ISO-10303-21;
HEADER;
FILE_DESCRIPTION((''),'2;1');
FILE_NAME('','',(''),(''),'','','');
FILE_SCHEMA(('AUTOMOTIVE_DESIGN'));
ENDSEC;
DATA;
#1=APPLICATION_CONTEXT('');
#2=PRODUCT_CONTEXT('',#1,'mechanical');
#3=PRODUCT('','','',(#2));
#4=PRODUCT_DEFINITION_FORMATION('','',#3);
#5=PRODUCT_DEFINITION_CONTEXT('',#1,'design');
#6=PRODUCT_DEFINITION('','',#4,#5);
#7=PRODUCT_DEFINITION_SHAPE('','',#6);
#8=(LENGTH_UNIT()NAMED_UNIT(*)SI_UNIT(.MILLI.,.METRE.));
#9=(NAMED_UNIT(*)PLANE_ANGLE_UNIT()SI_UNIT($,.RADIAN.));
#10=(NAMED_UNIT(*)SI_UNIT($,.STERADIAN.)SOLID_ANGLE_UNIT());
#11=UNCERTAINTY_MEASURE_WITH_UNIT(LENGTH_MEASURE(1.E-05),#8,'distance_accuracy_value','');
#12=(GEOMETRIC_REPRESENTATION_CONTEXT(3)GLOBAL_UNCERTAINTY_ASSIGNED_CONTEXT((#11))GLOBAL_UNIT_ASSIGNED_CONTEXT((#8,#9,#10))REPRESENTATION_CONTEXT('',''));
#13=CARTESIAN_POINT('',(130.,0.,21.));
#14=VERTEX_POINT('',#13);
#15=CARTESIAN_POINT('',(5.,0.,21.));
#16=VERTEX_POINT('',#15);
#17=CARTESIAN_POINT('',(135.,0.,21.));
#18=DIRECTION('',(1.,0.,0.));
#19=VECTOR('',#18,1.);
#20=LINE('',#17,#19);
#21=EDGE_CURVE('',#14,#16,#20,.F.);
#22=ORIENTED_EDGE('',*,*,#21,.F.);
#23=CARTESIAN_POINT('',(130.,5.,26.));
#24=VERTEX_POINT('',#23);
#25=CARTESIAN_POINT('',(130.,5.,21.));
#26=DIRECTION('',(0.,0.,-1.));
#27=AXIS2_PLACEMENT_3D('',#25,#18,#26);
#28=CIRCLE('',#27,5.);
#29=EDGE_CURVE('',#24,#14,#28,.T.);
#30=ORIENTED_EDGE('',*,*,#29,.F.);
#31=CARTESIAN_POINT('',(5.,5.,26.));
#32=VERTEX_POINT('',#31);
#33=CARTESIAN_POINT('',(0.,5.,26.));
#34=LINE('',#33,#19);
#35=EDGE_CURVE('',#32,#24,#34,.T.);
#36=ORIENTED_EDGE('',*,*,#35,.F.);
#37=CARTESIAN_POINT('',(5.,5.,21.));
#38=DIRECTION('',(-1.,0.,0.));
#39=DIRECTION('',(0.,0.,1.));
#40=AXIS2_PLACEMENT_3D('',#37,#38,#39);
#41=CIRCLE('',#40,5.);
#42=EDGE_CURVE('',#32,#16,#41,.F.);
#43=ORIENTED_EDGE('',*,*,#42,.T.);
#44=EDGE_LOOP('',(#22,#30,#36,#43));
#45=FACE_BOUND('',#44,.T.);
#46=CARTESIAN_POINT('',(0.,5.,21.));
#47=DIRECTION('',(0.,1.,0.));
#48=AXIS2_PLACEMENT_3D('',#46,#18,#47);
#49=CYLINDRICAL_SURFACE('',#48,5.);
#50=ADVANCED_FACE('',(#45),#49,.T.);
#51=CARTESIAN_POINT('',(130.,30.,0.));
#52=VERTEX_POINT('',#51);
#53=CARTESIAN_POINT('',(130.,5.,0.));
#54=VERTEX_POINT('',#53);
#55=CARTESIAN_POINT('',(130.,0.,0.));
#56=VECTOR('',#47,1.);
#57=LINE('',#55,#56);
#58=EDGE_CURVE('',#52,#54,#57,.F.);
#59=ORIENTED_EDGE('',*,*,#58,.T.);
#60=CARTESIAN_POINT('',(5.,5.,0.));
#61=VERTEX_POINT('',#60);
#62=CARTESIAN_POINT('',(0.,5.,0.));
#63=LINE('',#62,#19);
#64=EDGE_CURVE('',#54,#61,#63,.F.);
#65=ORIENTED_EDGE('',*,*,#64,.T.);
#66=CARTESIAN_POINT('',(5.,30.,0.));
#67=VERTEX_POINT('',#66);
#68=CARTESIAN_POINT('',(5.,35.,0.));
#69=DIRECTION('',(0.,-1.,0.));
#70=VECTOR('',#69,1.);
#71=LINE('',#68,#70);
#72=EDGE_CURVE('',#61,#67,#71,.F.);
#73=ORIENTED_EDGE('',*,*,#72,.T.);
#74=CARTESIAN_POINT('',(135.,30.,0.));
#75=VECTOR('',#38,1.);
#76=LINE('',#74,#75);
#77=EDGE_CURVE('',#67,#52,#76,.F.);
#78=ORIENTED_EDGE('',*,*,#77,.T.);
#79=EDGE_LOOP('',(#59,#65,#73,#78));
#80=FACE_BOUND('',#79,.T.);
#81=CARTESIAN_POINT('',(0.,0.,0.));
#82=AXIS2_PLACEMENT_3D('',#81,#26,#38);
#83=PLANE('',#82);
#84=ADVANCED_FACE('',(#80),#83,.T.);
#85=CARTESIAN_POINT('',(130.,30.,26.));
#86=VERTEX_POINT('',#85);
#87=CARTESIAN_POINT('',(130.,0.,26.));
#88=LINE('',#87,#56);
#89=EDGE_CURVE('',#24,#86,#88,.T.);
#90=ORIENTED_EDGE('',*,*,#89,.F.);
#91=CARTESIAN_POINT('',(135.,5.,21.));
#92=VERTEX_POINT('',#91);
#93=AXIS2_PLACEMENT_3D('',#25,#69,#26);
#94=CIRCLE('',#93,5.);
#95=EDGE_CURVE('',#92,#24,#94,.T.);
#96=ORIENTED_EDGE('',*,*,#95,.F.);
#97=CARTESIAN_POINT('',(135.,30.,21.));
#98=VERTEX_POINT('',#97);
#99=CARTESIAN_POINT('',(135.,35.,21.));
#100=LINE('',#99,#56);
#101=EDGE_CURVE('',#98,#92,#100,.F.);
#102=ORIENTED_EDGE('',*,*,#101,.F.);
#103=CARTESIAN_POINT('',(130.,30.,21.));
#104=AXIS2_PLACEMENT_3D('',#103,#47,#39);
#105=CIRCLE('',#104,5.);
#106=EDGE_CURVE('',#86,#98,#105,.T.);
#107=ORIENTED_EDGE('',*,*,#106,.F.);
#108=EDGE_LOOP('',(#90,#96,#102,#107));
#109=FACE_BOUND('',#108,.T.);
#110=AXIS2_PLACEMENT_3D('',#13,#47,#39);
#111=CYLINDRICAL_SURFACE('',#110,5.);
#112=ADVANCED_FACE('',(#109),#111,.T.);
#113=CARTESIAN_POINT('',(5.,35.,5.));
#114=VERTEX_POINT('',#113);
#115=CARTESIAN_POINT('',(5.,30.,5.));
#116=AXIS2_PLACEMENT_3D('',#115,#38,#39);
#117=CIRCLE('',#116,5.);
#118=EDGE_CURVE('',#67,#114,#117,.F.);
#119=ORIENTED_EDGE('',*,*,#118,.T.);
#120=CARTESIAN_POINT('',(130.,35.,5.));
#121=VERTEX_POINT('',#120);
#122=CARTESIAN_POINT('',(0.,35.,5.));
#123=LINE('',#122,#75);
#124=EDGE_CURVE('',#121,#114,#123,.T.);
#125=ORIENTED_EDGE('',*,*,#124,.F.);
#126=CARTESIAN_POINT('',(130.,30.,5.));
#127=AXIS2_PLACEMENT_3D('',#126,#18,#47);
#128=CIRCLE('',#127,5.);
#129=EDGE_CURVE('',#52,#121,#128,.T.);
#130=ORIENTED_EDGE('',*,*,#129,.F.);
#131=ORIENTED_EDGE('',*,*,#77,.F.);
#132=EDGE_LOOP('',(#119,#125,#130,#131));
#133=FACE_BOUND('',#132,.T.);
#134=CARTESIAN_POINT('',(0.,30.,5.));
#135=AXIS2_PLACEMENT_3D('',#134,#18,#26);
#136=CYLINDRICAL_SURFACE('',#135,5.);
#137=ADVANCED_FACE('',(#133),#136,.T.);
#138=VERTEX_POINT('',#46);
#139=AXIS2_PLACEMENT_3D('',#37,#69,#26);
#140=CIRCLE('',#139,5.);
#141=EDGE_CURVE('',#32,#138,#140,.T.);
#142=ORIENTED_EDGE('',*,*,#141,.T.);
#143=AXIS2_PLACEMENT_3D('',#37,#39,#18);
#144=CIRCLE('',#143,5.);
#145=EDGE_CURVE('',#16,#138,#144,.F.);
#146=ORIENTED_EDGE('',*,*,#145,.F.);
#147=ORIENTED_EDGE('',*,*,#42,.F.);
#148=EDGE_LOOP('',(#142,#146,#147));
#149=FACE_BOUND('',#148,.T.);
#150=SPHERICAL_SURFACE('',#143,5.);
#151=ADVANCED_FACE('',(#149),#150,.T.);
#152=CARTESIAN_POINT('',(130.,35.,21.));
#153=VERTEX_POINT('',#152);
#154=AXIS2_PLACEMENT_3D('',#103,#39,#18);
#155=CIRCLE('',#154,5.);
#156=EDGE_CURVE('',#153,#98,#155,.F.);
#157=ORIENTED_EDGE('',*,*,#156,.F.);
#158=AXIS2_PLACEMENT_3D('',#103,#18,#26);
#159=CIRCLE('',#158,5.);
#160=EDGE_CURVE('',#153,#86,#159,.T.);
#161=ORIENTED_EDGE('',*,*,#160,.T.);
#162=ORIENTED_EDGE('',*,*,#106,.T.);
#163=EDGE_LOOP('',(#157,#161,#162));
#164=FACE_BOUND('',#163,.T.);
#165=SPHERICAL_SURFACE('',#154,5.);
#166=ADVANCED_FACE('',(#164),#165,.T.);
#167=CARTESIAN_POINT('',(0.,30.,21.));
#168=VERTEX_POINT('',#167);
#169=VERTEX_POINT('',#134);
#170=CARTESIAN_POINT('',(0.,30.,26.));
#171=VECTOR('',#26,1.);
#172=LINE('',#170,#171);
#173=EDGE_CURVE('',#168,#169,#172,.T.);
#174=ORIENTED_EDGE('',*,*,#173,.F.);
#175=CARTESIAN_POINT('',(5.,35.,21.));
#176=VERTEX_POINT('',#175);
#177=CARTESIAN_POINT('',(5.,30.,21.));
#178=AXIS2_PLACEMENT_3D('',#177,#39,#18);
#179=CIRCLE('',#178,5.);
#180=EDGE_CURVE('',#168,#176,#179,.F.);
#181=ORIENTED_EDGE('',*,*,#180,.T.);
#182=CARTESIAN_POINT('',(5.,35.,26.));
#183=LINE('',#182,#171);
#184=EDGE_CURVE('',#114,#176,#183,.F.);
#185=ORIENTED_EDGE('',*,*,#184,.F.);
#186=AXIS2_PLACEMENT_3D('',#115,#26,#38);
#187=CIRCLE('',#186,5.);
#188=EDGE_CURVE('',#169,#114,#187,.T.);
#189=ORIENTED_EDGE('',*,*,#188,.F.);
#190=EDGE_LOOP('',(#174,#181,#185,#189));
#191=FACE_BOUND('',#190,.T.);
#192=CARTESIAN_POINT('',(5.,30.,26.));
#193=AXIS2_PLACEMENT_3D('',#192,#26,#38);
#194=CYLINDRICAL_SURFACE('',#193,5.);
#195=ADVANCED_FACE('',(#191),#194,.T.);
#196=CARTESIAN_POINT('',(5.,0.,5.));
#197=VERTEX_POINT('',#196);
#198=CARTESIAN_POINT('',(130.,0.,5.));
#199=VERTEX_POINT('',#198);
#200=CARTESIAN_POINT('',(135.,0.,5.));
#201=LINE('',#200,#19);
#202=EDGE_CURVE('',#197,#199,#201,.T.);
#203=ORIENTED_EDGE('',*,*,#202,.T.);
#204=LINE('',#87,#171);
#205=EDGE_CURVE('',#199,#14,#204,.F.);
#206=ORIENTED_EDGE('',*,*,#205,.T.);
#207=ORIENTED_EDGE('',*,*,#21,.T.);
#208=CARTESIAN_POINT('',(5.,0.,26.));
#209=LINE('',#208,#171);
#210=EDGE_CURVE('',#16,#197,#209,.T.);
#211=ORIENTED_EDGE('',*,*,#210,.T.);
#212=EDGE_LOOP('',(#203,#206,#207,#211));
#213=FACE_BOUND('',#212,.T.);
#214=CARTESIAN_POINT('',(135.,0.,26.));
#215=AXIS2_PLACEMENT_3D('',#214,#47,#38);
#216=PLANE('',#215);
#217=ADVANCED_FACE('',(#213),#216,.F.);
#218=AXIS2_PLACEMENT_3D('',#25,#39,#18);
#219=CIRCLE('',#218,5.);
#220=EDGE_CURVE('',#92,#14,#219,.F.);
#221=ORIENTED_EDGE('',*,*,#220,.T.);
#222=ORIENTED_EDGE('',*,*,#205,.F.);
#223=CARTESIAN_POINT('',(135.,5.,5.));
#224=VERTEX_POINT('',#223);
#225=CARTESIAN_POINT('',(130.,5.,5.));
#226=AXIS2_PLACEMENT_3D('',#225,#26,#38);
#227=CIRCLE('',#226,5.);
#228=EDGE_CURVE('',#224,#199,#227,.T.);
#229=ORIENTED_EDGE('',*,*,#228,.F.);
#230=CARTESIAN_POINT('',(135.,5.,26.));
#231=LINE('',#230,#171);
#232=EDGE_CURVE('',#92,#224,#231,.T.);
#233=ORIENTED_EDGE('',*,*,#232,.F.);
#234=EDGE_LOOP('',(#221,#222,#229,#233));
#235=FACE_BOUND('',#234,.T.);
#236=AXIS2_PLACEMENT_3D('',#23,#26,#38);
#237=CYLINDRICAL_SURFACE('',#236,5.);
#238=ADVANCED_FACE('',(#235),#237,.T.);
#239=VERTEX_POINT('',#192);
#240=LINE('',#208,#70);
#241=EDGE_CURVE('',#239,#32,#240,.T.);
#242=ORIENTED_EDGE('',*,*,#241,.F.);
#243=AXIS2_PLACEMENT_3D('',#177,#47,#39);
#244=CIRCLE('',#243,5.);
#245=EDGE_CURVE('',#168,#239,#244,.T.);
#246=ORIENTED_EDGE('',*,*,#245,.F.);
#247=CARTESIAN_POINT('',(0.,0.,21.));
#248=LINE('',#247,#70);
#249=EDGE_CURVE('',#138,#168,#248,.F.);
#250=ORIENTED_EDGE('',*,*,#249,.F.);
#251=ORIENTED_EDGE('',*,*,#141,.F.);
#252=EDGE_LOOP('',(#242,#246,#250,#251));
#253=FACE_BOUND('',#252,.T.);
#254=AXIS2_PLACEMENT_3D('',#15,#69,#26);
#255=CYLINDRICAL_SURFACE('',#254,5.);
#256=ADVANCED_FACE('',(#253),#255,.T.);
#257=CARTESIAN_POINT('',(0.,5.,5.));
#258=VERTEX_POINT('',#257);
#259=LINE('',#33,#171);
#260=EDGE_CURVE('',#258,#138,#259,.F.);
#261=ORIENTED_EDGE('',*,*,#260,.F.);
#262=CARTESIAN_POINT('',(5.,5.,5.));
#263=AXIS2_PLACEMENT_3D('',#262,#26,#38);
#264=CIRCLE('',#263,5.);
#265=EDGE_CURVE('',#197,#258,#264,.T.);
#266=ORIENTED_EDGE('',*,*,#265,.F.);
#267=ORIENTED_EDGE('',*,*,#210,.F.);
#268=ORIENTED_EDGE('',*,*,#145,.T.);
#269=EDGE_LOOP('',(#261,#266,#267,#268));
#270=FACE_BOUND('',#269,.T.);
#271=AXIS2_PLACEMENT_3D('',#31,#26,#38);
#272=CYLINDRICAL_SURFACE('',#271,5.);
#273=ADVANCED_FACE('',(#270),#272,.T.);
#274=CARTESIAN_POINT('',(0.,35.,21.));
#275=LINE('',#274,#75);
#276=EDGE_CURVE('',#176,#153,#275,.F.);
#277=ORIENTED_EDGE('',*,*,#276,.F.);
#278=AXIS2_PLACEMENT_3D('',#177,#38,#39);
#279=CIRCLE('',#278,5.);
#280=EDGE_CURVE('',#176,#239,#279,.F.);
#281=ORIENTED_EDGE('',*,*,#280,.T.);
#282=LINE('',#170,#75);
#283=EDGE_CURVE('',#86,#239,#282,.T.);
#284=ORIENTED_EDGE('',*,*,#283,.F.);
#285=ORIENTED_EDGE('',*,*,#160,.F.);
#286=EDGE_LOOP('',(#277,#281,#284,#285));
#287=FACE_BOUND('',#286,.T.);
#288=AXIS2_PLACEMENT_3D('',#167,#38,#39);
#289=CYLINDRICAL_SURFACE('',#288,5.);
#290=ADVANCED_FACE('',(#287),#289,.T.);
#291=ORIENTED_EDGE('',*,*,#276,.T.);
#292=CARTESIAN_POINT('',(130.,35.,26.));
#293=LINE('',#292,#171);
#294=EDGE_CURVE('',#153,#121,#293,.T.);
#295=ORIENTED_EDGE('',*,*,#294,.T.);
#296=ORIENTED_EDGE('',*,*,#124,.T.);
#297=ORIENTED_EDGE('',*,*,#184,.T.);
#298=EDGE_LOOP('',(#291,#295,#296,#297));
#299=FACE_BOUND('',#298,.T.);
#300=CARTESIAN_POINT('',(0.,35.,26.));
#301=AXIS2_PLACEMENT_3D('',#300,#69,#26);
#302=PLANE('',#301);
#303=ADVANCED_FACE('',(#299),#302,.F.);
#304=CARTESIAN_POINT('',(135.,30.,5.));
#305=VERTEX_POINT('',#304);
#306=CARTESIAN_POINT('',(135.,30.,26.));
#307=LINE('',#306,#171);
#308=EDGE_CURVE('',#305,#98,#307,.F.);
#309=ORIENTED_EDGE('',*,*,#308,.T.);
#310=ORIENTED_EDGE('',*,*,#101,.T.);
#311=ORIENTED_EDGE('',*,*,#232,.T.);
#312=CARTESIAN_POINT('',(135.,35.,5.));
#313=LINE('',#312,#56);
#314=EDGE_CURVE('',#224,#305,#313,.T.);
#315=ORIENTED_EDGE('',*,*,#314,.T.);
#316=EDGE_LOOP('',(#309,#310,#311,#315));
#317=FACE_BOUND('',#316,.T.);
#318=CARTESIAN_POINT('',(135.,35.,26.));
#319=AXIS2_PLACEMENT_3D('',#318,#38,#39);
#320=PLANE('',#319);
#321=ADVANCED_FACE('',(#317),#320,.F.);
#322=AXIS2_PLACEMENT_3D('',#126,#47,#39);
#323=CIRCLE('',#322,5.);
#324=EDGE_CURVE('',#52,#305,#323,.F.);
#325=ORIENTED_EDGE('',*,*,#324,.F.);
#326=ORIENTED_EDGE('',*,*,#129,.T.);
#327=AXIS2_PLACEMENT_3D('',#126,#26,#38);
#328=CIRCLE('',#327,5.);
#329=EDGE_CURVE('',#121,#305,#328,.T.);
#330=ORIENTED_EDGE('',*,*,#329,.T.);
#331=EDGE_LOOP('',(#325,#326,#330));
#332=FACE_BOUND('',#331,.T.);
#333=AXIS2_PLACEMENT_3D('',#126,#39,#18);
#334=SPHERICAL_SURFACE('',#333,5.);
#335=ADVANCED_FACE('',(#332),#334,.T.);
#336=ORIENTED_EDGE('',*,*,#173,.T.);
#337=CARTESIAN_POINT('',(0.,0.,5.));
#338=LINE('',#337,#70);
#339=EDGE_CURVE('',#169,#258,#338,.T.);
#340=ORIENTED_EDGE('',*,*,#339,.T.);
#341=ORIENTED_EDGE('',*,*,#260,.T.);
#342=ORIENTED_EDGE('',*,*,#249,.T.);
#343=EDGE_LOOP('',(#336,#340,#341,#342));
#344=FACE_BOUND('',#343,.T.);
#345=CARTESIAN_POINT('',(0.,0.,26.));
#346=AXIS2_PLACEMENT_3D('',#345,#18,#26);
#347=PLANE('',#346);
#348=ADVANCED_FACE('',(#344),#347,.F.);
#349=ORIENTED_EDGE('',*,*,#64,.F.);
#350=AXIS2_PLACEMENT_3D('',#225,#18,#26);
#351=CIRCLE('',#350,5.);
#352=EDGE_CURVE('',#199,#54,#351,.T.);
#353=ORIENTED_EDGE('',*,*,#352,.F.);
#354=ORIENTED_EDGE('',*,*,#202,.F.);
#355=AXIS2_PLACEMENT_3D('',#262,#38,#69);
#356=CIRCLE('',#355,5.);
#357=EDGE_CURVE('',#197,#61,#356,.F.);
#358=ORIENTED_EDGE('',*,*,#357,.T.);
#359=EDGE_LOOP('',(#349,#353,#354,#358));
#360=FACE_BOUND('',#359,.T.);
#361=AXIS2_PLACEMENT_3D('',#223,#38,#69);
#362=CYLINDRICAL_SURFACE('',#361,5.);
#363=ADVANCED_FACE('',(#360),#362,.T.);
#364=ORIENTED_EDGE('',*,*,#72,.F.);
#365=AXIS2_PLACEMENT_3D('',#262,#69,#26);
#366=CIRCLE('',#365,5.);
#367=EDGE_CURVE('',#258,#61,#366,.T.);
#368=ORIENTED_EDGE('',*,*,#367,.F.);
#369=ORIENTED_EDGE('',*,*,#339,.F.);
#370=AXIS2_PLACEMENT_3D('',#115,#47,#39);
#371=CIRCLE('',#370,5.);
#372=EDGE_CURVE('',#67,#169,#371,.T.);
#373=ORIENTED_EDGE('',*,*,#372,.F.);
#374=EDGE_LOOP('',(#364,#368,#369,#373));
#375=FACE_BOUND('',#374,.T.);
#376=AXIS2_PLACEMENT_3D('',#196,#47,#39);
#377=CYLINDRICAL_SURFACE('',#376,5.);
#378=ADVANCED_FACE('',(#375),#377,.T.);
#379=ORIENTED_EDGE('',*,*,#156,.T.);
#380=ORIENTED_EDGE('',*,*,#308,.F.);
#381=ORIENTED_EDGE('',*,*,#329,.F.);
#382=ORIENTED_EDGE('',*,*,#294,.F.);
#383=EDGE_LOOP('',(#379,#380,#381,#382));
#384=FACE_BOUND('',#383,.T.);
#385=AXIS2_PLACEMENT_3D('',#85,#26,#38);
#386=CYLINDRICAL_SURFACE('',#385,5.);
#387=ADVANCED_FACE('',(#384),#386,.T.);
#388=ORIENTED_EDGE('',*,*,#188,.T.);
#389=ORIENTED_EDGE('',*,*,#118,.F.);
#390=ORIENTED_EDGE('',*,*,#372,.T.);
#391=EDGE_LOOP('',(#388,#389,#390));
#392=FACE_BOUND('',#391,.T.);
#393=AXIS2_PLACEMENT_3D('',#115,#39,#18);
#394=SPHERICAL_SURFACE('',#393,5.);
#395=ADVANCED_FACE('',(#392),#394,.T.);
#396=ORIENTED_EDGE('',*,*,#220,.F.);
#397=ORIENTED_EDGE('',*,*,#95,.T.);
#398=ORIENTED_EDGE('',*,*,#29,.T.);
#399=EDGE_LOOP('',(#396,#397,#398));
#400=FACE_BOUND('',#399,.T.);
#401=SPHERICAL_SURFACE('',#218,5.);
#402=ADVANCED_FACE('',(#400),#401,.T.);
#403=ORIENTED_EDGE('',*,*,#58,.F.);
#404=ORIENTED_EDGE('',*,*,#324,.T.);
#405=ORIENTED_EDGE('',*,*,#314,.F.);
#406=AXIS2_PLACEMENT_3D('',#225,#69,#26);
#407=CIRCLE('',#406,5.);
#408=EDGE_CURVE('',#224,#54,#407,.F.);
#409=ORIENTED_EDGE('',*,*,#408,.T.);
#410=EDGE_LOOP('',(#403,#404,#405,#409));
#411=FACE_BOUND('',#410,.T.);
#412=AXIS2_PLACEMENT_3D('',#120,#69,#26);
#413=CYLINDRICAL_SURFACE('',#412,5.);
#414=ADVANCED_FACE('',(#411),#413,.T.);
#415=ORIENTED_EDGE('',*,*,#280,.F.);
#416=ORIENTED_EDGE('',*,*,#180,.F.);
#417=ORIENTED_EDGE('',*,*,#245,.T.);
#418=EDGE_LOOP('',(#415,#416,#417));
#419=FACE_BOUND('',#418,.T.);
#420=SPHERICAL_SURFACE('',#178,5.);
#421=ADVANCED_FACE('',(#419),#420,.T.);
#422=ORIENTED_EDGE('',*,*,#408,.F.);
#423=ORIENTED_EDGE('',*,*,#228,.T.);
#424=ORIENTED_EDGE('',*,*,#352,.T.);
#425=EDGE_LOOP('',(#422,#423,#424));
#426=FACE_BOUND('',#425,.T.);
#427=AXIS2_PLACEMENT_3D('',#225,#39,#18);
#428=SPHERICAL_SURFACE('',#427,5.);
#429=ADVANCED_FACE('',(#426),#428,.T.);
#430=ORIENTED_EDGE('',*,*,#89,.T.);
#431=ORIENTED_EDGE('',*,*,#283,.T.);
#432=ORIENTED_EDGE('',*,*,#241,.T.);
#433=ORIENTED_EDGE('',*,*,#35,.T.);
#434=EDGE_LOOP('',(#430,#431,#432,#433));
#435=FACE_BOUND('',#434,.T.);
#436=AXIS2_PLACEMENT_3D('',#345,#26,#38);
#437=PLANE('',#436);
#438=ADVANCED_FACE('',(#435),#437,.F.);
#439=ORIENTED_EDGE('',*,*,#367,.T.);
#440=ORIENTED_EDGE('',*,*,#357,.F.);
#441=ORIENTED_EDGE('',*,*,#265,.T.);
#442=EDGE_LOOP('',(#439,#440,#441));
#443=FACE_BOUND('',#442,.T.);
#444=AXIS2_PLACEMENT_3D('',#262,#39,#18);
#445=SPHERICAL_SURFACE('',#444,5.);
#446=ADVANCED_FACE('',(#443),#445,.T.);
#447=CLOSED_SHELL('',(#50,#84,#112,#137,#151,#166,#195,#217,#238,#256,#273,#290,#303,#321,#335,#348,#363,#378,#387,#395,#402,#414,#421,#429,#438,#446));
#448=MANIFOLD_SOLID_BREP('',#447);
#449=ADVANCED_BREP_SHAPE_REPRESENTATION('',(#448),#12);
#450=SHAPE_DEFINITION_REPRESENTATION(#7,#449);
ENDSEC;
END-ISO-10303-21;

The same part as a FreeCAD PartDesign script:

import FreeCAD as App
import Part
import Sketcher
from FreeCAD import Vector

doc = App.newDocument("Part")
body = doc.addObject("PartDesign::Body", "Body")

# Sketch on XY plane
sketch1 = doc.addObject("Sketcher::SketchObject", "Sketch")
body.addObject(sketch1)
sketch1.AttachmentSupport = (doc.XY_Plane, [""])
sketch1.MapMode = "FlatFace"
sketch1.addGeometry(Part.LineSegment(Vector(0, 35, 0), Vector(0, 0, 0)), False)
sketch1.addGeometry(Part.LineSegment(Vector(0, 0, 0), Vector(135, 0, 0)), False)
sketch1.addGeometry(Part.LineSegment(Vector(135, 0, 0), Vector(135, 35, 0)), False)
sketch1.addGeometry(Part.LineSegment(Vector(135, 35, 0), Vector(0, 35, 0)), False)
sketch1.addConstraint(Sketcher.Constraint("Coincident", 0, 2, 1, 1))
sketch1.addConstraint(Sketcher.Constraint("Coincident", 1, 2, 2, 1))
sketch1.addConstraint(Sketcher.Constraint("Coincident", 2, 2, 3, 1))
sketch1.addConstraint(Sketcher.Constraint("Coincident", 3, 2, 0, 1))
sketch1.addConstraint(Sketcher.Constraint("Vertical", 0))
sketch1.addConstraint(Sketcher.Constraint("Horizontal", 1))
sketch1.addConstraint(Sketcher.Constraint("Vertical", 2))
sketch1.addConstraint(Sketcher.Constraint("Horizontal", 3))
sketch1.addConstraint(Sketcher.Constraint("Coincident", 0, 2, -1, 1))
sketch1.addConstraint(Sketcher.Constraint("DistanceX", 1, 1, 1, 2, 135.0))
sketch1.addConstraint(Sketcher.Constraint("DistanceY", 0, 2, 0, 1, 35.0))
pad1 = doc.addObject("PartDesign::Pad", "Pad")
body.addObject(pad1)
pad1.Profile = sketch1
pad1.Length = 26
doc.recompute()

fillet = doc.addObject("PartDesign::Fillet", "Fillet")
body.addObject(fillet)
fillet.Base = (pad1, ["Edge1"])
fillet.UseAllEdges = True
fillet.Radius = 5

doc.recompute()
